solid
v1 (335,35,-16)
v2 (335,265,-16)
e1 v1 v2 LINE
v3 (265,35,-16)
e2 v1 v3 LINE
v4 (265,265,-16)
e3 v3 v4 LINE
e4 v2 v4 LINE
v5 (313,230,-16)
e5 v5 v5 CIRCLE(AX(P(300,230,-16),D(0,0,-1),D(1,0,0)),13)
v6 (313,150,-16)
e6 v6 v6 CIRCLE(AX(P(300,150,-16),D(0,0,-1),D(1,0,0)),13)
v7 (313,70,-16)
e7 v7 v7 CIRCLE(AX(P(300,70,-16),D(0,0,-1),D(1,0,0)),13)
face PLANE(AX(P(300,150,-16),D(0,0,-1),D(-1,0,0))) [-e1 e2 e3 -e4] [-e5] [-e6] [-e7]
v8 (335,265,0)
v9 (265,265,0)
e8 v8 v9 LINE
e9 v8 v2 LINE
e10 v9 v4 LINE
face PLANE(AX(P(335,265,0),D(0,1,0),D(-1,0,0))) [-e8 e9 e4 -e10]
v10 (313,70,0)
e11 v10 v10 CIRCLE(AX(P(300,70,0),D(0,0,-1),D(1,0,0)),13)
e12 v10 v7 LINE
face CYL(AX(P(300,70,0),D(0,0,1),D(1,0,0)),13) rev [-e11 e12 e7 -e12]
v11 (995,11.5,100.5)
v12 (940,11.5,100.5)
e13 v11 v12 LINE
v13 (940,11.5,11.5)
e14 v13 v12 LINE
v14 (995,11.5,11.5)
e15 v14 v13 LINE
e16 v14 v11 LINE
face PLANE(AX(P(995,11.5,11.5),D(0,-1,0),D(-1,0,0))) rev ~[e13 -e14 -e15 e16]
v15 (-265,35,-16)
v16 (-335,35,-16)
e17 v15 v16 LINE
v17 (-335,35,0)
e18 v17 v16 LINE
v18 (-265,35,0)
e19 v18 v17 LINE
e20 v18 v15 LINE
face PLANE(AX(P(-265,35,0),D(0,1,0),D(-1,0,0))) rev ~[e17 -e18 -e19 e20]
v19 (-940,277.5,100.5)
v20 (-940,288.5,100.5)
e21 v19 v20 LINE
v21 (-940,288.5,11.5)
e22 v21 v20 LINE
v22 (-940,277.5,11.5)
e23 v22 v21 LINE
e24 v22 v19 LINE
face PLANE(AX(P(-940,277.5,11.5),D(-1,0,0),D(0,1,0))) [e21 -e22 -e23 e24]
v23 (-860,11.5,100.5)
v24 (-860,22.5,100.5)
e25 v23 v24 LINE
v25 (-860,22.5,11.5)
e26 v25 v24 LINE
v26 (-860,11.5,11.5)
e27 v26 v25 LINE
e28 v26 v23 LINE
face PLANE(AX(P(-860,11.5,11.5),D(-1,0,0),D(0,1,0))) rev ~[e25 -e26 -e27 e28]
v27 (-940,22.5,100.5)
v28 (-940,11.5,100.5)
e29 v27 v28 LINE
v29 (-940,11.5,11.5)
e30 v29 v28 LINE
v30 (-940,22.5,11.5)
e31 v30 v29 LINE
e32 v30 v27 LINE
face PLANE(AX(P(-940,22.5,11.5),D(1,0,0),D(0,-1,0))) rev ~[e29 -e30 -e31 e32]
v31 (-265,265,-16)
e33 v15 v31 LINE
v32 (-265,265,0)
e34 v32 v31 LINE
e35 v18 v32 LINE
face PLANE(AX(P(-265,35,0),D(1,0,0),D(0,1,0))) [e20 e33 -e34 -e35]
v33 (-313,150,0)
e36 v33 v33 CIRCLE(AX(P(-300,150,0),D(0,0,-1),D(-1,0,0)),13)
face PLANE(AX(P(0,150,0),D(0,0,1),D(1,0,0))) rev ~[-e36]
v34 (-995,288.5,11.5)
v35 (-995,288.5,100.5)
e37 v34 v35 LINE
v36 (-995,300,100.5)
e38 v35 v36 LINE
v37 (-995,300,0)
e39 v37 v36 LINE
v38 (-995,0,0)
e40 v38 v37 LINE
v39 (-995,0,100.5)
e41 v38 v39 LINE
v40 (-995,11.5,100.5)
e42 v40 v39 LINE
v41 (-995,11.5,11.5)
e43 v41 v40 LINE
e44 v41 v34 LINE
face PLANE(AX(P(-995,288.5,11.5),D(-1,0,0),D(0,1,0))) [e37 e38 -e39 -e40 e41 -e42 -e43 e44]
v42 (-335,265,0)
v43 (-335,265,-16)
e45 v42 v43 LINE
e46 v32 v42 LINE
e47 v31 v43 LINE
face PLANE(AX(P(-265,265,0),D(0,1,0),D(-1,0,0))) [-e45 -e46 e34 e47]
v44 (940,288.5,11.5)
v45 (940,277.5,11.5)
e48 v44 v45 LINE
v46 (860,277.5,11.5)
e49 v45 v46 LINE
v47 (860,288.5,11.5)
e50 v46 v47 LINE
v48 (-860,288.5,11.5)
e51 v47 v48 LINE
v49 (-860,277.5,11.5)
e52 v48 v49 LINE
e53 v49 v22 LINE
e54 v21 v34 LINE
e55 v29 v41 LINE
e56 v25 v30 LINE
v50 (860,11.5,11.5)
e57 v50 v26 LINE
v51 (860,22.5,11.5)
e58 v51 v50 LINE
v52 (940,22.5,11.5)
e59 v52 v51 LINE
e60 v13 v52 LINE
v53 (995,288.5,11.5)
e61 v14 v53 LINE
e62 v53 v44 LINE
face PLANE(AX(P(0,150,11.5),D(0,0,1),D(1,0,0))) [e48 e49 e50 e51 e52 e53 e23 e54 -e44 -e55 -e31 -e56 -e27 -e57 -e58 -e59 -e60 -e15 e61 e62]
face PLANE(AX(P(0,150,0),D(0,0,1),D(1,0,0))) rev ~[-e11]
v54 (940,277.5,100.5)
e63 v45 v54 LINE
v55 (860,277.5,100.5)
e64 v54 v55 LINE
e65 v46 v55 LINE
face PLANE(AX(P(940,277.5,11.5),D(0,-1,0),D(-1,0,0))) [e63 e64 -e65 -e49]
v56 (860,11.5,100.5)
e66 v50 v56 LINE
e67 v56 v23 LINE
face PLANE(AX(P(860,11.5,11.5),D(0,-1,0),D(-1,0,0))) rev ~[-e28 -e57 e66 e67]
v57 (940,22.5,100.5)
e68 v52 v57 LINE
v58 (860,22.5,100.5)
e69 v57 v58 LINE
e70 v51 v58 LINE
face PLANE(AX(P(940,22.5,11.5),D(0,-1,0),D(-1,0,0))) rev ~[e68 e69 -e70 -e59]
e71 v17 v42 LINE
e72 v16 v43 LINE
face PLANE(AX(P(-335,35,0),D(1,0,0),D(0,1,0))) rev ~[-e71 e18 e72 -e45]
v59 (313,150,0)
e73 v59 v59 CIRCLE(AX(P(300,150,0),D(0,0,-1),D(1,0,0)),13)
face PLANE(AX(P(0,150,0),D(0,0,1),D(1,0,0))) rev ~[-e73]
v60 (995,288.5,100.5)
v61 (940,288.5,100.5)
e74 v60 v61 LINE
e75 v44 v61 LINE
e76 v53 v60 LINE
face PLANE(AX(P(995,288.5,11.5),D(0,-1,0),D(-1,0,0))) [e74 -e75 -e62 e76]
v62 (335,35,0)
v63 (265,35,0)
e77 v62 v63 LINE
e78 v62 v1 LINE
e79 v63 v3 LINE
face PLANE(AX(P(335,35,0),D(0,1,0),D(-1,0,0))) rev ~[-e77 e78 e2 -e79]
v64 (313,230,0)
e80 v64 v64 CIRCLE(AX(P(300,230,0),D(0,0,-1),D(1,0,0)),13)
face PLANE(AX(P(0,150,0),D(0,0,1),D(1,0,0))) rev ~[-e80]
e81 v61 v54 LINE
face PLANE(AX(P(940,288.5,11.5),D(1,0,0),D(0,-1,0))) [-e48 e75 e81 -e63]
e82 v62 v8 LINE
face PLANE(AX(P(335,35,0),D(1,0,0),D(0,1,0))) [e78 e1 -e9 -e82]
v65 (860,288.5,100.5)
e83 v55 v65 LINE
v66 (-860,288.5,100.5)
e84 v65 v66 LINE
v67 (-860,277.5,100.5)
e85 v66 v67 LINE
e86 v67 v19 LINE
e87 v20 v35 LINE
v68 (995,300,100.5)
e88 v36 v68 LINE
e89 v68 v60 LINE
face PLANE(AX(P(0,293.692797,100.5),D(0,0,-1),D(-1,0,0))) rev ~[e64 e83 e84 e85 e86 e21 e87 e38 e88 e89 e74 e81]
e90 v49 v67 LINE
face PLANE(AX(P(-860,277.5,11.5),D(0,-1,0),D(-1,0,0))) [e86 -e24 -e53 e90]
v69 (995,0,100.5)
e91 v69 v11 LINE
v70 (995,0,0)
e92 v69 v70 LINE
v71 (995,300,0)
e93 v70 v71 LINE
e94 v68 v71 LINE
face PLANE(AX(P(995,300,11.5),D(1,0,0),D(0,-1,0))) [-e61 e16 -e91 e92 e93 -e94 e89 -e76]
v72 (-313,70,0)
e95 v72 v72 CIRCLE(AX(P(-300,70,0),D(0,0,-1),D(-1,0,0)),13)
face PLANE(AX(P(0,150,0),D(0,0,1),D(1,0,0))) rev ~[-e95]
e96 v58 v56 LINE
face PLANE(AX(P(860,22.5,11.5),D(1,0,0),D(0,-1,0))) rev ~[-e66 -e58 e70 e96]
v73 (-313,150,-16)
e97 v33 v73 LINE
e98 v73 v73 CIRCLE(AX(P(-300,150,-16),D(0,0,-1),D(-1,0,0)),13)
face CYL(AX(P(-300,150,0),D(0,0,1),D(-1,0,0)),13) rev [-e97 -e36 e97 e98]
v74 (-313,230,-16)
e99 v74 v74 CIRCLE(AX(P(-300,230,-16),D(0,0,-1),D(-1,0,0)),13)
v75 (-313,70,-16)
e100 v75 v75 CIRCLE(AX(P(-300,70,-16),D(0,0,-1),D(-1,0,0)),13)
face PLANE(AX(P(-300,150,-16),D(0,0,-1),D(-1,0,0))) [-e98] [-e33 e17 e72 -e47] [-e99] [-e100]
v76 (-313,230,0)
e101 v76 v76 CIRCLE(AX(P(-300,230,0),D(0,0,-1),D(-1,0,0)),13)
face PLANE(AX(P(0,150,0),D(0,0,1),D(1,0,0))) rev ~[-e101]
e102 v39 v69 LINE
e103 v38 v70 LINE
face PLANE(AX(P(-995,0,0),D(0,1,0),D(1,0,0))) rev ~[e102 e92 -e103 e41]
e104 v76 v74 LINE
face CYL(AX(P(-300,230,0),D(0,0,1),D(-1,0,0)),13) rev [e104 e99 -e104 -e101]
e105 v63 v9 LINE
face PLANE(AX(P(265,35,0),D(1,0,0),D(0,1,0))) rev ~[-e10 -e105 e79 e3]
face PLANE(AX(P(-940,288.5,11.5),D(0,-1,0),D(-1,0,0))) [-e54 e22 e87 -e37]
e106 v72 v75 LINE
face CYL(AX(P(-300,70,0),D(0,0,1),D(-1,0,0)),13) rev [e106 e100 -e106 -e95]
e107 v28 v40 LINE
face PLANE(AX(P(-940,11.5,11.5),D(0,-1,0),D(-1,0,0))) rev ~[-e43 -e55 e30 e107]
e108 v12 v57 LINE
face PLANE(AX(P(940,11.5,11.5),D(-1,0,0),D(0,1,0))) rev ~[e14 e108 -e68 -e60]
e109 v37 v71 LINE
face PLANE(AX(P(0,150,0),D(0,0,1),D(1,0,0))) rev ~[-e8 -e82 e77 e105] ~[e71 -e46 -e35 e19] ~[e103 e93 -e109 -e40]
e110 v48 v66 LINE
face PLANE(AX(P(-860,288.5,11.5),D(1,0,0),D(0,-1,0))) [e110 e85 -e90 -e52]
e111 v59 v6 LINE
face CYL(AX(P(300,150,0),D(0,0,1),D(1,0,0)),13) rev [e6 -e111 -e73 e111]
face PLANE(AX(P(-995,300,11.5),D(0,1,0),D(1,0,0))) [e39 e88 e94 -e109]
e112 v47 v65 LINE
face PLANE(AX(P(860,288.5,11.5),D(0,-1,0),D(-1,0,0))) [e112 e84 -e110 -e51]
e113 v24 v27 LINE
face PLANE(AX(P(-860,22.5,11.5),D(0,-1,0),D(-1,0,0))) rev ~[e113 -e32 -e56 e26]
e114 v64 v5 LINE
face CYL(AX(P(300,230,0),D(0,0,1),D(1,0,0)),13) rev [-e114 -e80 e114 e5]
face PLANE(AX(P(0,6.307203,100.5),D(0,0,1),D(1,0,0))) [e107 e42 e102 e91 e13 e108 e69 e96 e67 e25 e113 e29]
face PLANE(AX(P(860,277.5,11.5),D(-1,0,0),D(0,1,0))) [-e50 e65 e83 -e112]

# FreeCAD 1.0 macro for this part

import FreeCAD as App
import Part
import Sketcher

V = App.Vector

doc = App.newDocument("Part")
body = doc.addObject("PartDesign::Body", "Body")

# Sketch on XY plane
sketch1 = body.newObject("Sketcher::SketchObject", "Sketch")
sketch1.AttachmentSupport = (doc.getObject("XY_Plane"), [""])
sketch1.MapMode = "FlatFace"
sketch1.addGeometry(Part.LineSegment(V(-995, 300, 0), V(-995, 0, 0)), False)
sketch1.addGeometry(Part.LineSegment(V(-995, 0, 0), V(995, 0, 0)), False)
sketch1.addGeometry(Part.LineSegment(V(995, 0, 0), V(995, 300, 0)), False)
sketch1.addGeometry(Part.LineSegment(V(995, 300, 0), V(-995, 300, 0)), False)
sketch1.addConstraint(Sketcher.Constraint("Coincident", 0, 2, 1, 1))
sketch1.addConstraint(Sketcher.Constraint("Coincident", 1, 2, 2, 1))
sketch1.addConstraint(Sketcher.Constraint("Coincident", 2, 2, 3, 1))
sketch1.addConstraint(Sketcher.Constraint("Coincident", 3, 2, 0, 1))
sketch1.addConstraint(Sketcher.Constraint("Vertical", 0))
sketch1.addConstraint(Sketcher.Constraint("Horizontal", 1))
sketch1.addConstraint(Sketcher.Constraint("Vertical", 2))
sketch1.addConstraint(Sketcher.Constraint("Horizontal", 3))
sketch1.addConstraint(Sketcher.Constraint("Symmetric", 0, 2, 1, 2, -1, 1))
sketch1.addConstraint(Sketcher.Constraint("DistanceX", 1, 1, 1, 2, 1990.0))
sketch1.addConstraint(Sketcher.Constraint("DistanceY", 0, 2, 0, 1, 300.0))
pad1 = body.newObject("PartDesign::Pad", "Pad")
pad1.Profile = sketch1
pad1.Length = 11.5

# Sketch on XY plane
sketch2 = body.newObject("Sketcher::SketchObject", "Sketch001")
sketch2.AttachmentSupport = (doc.getObject("XY_Plane"), [""])
sketch2.MapMode = "FlatFace"
sketch2.AttachmentOffset = App.Placement(V(0, 0, 11.5), App.Rotation())
sketch2.addGeometry(Part.LineSegment(V(995, 300, 0), V(-995, 300, 0)), False)
sketch2.addGeometry(Part.LineSegment(V(-995, 300, 0), V(-995, 288, 0)), False)
sketch2.addGeometry(Part.LineSegment(V(-995, 288, 0), V(-940, 288, 0)), False)
sketch2.addGeometry(Part.LineSegment(V(-940, 288, 0), V(-940, 278, 0)), False)
sketch2.addGeometry(Part.LineSegment(V(-940, 278, 0), V(-860, 278, 0)), False)
sketch2.addGeometry(Part.LineSegment(V(-860, 278, 0), V(-860, 288, 0)), False)
sketch2.addGeometry(Part.LineSegment(V(-860, 288, 0), V(860, 288, 0)), False)
sketch2.addGeometry(Part.LineSegment(V(860, 288, 0), V(860, 278, 0)), False)
sketch2.addGeometry(Part.LineSegment(V(860, 278, 0), V(940, 278, 0)), False)
sketch2.addGeometry(Part.LineSegment(V(940, 278, 0), V(940, 288, 0)), False)
sketch2.addGeometry(Part.LineSegment(V(940, 288, 0), V(995, 288, 0)), False)
sketch2.addGeometry(Part.LineSegment(V(995, 288, 0), V(995, 300, 0)), False)
sketch2.addGeometry(Part.LineSegment(V(-995, 0, 0), V(995, 0, 0)), False)
sketch2.addGeometry(Part.LineSegment(V(995, 0, 0), V(995, 12, 0)), False)
sketch2.addGeometry(Part.LineSegment(V(995, 12, 0), V(940, 12, 0)), False)
sketch2.addGeometry(Part.LineSegment(V(940, 12, 0), V(940, 22, 0)), False)
sketch2.addGeometry(Part.LineSegment(V(940, 22, 0), V(860, 22, 0)), False)
sketch2.addGeometry(Part.LineSegment(V(860, 22, 0), V(860, 12, 0)), False)
sketch2.addGeometry(Part.LineSegment(V(860, 12, 0), V(-860, 12, 0)), False)
sketch2.addGeometry(Part.LineSegment(V(-860, 12, 0), V(-860, 22, 0)), False)
sketch2.addGeometry(Part.LineSegment(V(-860, 22, 0), V(-940, 22, 0)), False)
sketch2.addGeometry(Part.LineSegment(V(-940, 22, 0), V(-940, 12, 0)), False)
sketch2.addGeometry(Part.LineSegment(V(-940, 12, 0), V(-995, 12, 0)), False)
sketch2.addGeometry(Part.LineSegment(V(-995, 12, 0), V(-995, 0, 0)), False)
sketch2.addConstraint(Sketcher.Constraint("Coincident", 0, 2, 1, 1))
sketch2.addConstraint(Sketcher.Constraint("Coincident", 1, 2, 2, 1))
sketch2.addConstraint(Sketcher.Constraint("Coincident", 2, 2, 3, 1))
sketch2.addConstraint(Sketcher.Constraint("Coincident", 3, 2, 4, 1))
sketch2.addConstraint(Sketcher.Constraint("Coincident", 4, 2, 5, 1))
sketch2.addConstraint(Sketcher.Constraint("Coincident", 5, 2, 6, 1))
sketch2.addConstraint(Sketcher.Constraint("Coincident", 6, 2, 7, 1))
sketch2.addConstraint(Sketcher.Constraint("Coincident", 7, 2, 8, 1))
sketch2.addConstraint(Sketcher.Constraint("Coincident", 8, 2, 9, 1))
sketch2.addConstraint(Sketcher.Constraint("Coincident", 9, 2, 10, 1))
sketch2.addConstraint(Sketcher.Constraint("Coincident", 10, 2, 11, 1))
sketch2.addConstraint(Sketcher.Constraint("Coincident", 11, 2, 0, 1))
sketch2.addConstraint(Sketcher.Constraint("Coincident", 12, 2, 13, 1))
sketch2.addConstraint(Sketcher.Constraint("Coincident", 13, 2, 14, 1))
sketch2.addConstraint(Sketcher.Constraint("Coincident", 14, 2, 15, 1))
sketch2.addConstraint(Sketcher.Constraint("Coincident", 15, 2, 16, 1))
sketch2.addConstraint(Sketcher.Constraint("Coincident", 16, 2, 17, 1))
sketch2.addConstraint(Sketcher.Constraint("Coincident", 17, 2, 18, 1))
sketch2.addConstraint(Sketcher.Constraint("Coincident", 18, 2, 19, 1))
sketch2.addConstraint(Sketcher.Constraint("Coincident", 19, 2, 20, 1))
sketch2.addConstraint(Sketcher.Constraint("Coincident", 20, 2, 21, 1))
sketch2.addConstraint(Sketcher.Constraint("Coincident", 21, 2, 22, 1))
sketch2.addConstraint(Sketcher.Constraint("Coincident", 22, 2, 23, 1))
sketch2.addConstraint(Sketcher.Constraint("Coincident", 23, 2, 12, 1))
sketch2.addConstraint(Sketcher.Constraint("Horizontal", 0))
sketch2.addConstraint(Sketcher.Constraint("Vertical", 1))
sketch2.addConstraint(Sketcher.Constraint("Horizontal", 2))
sketch2.addConstraint(Sketcher.Constraint("Vertical", 3))
sketch2.addConstraint(Sketcher.Constraint("Horizontal", 4))
sketch2.addConstraint(Sketcher.Constraint("Vertical", 5))
sketch2.addConstraint(Sketcher.Constraint("Horizontal", 6))
sketch2.addConstraint(Sketcher.Constraint("Vertical", 7))
sketch2.addConstraint(Sketcher.Constraint("Horizontal", 8))
sketch2.addConstraint(Sketcher.Constraint("Vertical", 9))
sketch2.addConstraint(Sketcher.Constraint("Horizontal", 10))
sketch2.addConstraint(Sketcher.Constraint("Vertical", 11))
sketch2.addConstraint(Sketcher.Constraint("Horizontal", 12))
sketch2.addConstraint(Sketcher.Constraint("Vertical", 13))
sketch2.addConstraint(Sketcher.Constraint("Horizontal", 14))
sketch2.addConstraint(Sketcher.Constraint("Vertical", 15))
sketch2.addConstraint(Sketcher.Constraint("Horizontal", 16))
sketch2.addConstraint(Sketcher.Constraint("Vertical", 17))
sketch2.addConstraint(Sketcher.Constraint("Horizontal", 18))
sketch2.addConstraint(Sketcher.Constraint("Vertical", 19))
sketch2.addConstraint(Sketcher.Constraint("Horizontal", 20))
sketch2.addConstraint(Sketcher.Constraint("Vertical", 21))
sketch2.addConstraint(Sketcher.Constraint("Horizontal", 22))
sketch2.addConstraint(Sketcher.Constraint("Vertical", 23))
sketch2.addConstraint(Sketcher.Constraint("Symmetric", 12, 2, 23, 2, -1, 1))
sketch2.addConstraint(Sketcher.Constraint("Symmetric", 4, 2, 7, 2, -2))
sketch2.addConstraint(Sketcher.Constraint("Symmetric", 2, 2, 9, 2, -2))
sketch2.addConstraint(Sketcher.Constraint("Symmetric", 16, 2, 19, 2, -2))
sketch2.addConstraint(Sketcher.Constraint("Symmetric", 14, 2, 21, 2, -2))
sketch2.addConstraint(Sketcher.Constraint("Horizontal", 2, 2, 5, 2))
sketch2.addConstraint(Sketcher.Constraint("Horizontal", 14, 2, 17, 2))
sketch2.addConstraint(Sketcher.Constraint("Vertical", 11, 2, 12, 2))
sketch2.addConstraint(Sketcher.Constraint("Vertical", 9, 2, 14, 2))
sketch2.addConstraint(Sketcher.Constraint("Vertical", 7, 2, 16, 2))
sketch2.addConstraint(Sketcher.Constraint("Vertical", 1, 2, 22, 2))
sketch2.addConstraint(Sketcher.Constraint("Equal", 11, 13))
sketch2.addConstraint(Sketcher.Constraint("Equal", 9, 15))
sketch2.addConstraint(Sketcher.Constraint("DistanceX", 0, 2, 0, 1, 1990.0))
sketch2.addConstraint(Sketcher.Constraint("DistanceX", 2, 1, 2, 2, 55.0))
sketch2.addConstraint(Sketcher.Constraint("DistanceX", 4, 1, 4, 2, 80.0))
sketch2.addConstraint(Sketcher.Constraint("DistanceY", 3, 2, 3, 1, 11.0))
sketch2.addConstraint(Sketcher.Constraint("DistanceY", 1, 2, 1, 1, 11.5))
sketch2.addConstraint(Sketcher.Constraint("DistanceY", -1, 1, 0, 2, 300.0))
pad2 = body.newObject("PartDesign::Pad", "Pad001")
pad2.Profile = sketch2
pad2.Length = 89

# Sketch on XY plane
sketch3 = body.newObject("Sketcher::SketchObject", "Sketch002")
sketch3.AttachmentSupport = (doc.getObject("XY_Plane"), [""])
sketch3.MapMode = "FlatFace"
sketch3.addGeometry(Part.LineSegment(V(-265, 265, 0), V(-265, 35, 0)), False)
sketch3.addGeometry(Part.LineSegment(V(-265, 35, 0), V(-335, 35, 0)), False)
sketch3.addGeometry(Part.LineSegment(V(-335, 35, 0), V(-335, 265, 0)), False)
sketch3.addGeometry(Part.LineSegment(V(-335, 265, 0), V(-265, 265, 0)), False)
sketch3.addGeometry(Part.Circle(V(-300, 70, 0), V(0, 0, 1), 13), False)
sketch3.addGeometry(Part.Circle(V(-300, 150, 0), V(0, 0, 1), 13), False)
sketch3.addGeometry(Part.Circle(V(-300, 230, 0), V(0, 0, 1), 13), False)
sketch3.addGeometry(Part.LineSegment(V(335, 265, 0), V(335, 35, 0)), False)
sketch3.addGeometry(Part.LineSegment(V(335, 35, 0), V(265, 35, 0)), False)
sketch3.addGeometry(Part.LineSegment(V(265, 35, 0), V(265, 265, 0)), False)
sketch3.addGeometry(Part.LineSegment(V(265, 265, 0), V(335, 265, 0)), False)
sketch3.addGeometry(Part.Circle(V(300, 70, 0), V(0, 0, 1), 13), False)
sketch3.addGeometry(Part.Circle(V(300, 150, 0), V(0, 0, 1), 13), False)
sketch3.addGeometry(Part.Circle(V(300, 230, 0), V(0, 0, 1), 13), False)
sketch3.addConstraint(Sketcher.Constraint("Coincident", 0, 2, 1, 1))
sketch3.addConstraint(Sketcher.Constraint("Coincident", 1, 2, 2, 1))
sketch3.addConstraint(Sketcher.Constraint("Coincident", 2, 2, 3, 1))
sketch3.addConstraint(Sketcher.Constraint("Coincident", 3, 2, 0, 1))
sketch3.addConstraint(Sketcher.Constraint("Coincident", 7, 2, 8, 1))
sketch3.addConstraint(Sketcher.Constraint("Coincident", 8, 2, 9, 1))
sketch3.addConstraint(Sketcher.Constraint("Coincident", 9, 2, 10, 1))
sketch3.addConstraint(Sketcher.Constraint("Coincident", 10, 2, 7, 1))
sketch3.addConstraint(Sketcher.Constraint("Vertical", 0))
sketch3.addConstraint(Sketcher.Constraint("Horizontal", 1))
sketch3.addConstraint(Sketcher.Constraint("Vertical", 2))
sketch3.addConstraint(Sketcher.Constraint("Horizontal", 3))
sketch3.addConstraint(Sketcher.Constraint("Vertical", 7))
sketch3.addConstraint(Sketcher.Constraint("Horizontal", 8))
sketch3.addConstraint(Sketcher.Constraint("Vertical", 9))
sketch3.addConstraint(Sketcher.Constraint("Horizontal", 10))
sketch3.addConstraint(Sketcher.Constraint("Equal", 4, 5))
sketch3.addConstraint(Sketcher.Constraint("Equal", 5, 6))
sketch3.addConstraint(Sketcher.Constraint("Equal", 6, 11))
sketch3.addConstraint(Sketcher.Constraint("Equal", 11, 12))
sketch3.addConstraint(Sketcher.Constraint("Equal", 12, 13))
sketch3.addConstraint(Sketcher.Constraint("Symmetric", 4, 3, 11, 3, -2))
sketch3.addConstraint(Sketcher.Constraint("Symmetric", 5, 3, 12, 3, -2))
sketch3.addConstraint(Sketcher.Constraint("Symmetric", 6, 3, 13, 3, -2))
sketch3.addConstraint(Sketcher.Constraint("Symmetric", 1, 2, 7, 2, -2))
sketch3.addConstraint(Sketcher.Constraint("Symmetric", 3, 2, 9, 2, -2))
sketch3.addConstraint(Sketcher.Constraint("Vertical", 4, 3, 5, 3))
sketch3.addConstraint(Sketcher.Constraint("Vertical", 5, 3, 6, 3))
sketch3.addConstraint(Sketcher.Constraint("Diameter", 4, 26.0))
sketch3.addConstraint(Sketcher.Constraint("DistanceX", 1, 2, 1, 1, 70.0))
sketch3.addConstraint(Sketcher.Constraint("DistanceY", 0, 2, 0, 1, 230.0))
sketch3.addConstraint(Sketcher.Constraint("DistanceX", 4, 3, -1, 1, 300.0))
sketch3.addConstraint(Sketcher.Constraint("DistanceY", -1, 1, 4, 3, 70.0))
sketch3.addConstraint(Sketcher.Constraint("DistanceY", -1, 1, 5, 3, 150.0))
sketch3.addConstraint(Sketcher.Constraint("DistanceY", -1, 1, 6, 3, 230.0))
sketch3.addConstraint(Sketcher.Constraint("DistanceX", 0, 2, -1, 1, 265.0))
sketch3.addConstraint(Sketcher.Constraint("DistanceY", -1, 1, 0, 2, 35.0))
pad3 = body.newObject("PartDesign::Pad", "Pad002")
pad3.Profile = sketch3
pad3.Length = 16
pad3.Reversed = True

doc.recompute()
